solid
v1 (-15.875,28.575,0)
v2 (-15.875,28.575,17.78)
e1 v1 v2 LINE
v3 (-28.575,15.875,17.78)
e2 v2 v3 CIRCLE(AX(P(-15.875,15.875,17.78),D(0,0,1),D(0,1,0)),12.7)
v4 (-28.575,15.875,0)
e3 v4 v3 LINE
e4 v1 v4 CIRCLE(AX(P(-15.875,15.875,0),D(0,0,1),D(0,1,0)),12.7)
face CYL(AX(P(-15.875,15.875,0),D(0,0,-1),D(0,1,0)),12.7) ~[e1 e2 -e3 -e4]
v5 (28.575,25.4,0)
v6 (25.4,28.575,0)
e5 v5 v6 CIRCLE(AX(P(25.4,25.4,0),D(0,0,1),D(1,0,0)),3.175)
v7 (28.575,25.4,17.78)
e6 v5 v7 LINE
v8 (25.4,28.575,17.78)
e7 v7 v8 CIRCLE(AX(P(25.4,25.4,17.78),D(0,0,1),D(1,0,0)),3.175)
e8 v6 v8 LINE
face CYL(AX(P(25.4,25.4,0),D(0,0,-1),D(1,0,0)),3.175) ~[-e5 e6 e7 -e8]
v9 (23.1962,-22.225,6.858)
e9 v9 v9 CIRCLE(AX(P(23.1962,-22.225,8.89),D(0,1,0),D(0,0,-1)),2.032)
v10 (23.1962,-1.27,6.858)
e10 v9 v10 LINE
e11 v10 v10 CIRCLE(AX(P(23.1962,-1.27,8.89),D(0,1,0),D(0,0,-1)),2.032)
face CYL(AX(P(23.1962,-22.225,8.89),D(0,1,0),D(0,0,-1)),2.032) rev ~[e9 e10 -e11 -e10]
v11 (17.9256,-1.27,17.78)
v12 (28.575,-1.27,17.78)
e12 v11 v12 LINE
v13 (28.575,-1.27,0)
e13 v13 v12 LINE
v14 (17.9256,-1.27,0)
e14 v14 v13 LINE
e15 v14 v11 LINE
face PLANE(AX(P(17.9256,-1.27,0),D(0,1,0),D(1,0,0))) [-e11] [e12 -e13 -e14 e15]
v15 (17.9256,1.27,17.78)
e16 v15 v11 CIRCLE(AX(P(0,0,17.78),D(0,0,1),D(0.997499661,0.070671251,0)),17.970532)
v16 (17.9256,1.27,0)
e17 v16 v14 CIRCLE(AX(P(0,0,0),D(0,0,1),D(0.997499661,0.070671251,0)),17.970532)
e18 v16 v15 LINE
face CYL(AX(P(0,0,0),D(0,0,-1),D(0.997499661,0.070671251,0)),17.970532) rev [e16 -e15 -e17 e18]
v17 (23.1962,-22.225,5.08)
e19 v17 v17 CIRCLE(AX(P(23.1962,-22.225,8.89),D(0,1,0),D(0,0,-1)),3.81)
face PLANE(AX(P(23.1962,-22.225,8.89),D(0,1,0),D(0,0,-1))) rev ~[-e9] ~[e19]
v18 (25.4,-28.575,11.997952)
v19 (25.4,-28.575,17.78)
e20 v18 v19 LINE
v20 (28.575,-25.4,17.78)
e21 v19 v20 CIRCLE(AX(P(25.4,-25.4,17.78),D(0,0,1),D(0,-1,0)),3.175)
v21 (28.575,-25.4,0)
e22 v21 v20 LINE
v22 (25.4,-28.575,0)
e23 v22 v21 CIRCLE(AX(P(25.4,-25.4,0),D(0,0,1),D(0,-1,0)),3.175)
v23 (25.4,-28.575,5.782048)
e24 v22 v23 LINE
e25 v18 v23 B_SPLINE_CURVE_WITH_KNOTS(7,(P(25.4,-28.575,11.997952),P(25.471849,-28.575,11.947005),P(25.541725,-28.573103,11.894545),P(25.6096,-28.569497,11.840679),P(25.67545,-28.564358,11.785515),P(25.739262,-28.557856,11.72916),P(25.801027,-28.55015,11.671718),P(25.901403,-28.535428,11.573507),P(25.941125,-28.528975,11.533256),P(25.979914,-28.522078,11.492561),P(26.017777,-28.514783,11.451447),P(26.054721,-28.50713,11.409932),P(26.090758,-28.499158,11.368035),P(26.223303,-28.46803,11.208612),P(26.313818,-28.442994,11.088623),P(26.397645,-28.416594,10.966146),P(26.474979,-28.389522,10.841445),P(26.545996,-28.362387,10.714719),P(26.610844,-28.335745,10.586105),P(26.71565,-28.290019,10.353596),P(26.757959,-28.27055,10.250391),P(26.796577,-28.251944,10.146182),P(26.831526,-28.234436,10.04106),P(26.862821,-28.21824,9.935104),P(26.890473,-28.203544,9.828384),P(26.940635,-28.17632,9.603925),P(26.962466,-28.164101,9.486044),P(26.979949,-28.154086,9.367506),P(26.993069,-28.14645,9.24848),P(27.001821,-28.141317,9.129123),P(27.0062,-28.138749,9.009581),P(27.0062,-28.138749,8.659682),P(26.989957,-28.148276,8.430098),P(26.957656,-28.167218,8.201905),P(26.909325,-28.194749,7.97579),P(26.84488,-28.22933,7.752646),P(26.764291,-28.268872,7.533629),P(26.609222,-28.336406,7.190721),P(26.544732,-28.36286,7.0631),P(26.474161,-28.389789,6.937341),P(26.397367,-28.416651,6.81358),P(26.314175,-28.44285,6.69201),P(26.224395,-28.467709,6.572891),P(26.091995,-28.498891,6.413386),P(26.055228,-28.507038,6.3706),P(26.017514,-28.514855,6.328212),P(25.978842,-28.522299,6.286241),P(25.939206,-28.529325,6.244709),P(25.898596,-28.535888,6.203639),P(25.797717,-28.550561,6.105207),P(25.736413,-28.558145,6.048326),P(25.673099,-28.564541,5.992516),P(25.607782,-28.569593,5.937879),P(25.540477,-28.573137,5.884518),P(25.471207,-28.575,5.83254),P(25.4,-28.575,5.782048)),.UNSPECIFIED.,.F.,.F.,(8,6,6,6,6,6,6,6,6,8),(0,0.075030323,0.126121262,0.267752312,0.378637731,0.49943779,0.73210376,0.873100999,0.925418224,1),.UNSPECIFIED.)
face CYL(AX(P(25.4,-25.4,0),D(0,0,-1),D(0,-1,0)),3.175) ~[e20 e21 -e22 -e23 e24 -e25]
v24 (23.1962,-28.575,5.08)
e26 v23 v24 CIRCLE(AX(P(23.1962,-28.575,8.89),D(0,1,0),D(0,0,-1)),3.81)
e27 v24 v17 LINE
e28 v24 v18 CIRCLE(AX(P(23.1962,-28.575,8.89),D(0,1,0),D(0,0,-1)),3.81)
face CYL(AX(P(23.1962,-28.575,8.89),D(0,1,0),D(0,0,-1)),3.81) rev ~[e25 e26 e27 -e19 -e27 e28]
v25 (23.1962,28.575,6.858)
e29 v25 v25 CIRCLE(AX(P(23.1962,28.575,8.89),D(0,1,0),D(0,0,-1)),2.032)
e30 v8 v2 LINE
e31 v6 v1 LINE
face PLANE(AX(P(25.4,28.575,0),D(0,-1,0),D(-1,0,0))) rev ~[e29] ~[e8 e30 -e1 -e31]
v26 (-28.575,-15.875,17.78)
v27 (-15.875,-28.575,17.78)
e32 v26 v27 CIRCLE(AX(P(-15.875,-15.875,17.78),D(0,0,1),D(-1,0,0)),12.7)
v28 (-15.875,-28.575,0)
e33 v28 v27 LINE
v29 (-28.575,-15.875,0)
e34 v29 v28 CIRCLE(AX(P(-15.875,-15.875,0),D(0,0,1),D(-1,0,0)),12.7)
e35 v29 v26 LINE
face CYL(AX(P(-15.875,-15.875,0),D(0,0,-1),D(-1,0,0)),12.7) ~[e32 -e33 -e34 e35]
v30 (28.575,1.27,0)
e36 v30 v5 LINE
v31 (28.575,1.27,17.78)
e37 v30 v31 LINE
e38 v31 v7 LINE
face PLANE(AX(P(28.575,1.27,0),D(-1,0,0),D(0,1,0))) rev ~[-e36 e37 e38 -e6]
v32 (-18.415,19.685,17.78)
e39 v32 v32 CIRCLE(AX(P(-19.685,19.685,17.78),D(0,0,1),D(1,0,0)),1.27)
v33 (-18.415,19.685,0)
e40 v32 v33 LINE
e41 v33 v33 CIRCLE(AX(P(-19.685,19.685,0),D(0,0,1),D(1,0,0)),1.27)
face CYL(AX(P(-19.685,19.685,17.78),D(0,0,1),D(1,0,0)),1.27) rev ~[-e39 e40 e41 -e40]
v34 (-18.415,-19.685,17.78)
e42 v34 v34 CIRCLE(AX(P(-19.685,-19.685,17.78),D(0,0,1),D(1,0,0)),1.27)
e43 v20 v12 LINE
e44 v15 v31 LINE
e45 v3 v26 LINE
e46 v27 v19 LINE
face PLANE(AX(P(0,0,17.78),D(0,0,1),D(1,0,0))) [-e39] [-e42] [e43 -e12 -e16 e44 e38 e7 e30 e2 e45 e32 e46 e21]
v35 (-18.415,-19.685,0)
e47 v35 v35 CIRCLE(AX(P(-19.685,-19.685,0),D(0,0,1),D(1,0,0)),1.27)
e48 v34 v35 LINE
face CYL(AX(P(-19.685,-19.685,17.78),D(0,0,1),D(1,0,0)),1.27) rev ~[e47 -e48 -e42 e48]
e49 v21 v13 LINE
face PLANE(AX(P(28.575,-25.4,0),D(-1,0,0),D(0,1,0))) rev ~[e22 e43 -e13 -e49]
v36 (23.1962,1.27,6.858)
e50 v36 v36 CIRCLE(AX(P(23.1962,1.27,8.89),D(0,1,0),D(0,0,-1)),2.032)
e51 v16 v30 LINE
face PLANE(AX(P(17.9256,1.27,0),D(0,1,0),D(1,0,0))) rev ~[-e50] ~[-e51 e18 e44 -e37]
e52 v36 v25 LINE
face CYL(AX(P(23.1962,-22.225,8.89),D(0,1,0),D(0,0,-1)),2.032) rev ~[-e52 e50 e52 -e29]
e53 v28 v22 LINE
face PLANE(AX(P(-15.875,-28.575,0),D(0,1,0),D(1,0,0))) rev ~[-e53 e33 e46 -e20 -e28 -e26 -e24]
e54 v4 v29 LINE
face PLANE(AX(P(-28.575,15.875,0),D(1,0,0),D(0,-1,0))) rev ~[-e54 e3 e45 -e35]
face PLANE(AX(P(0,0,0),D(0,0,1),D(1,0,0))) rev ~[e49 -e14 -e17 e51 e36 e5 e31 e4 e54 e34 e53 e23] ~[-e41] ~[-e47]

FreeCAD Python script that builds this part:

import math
import FreeCAD as App
import Part
import Sketcher
Q = App.Units.Quantity

doc = App.newDocument("Part")
body = doc.addObject("PartDesign::Body", "Body")

sketch1 = body.newObject("Sketcher::SketchObject", "Sketch")
sketch1.AttachmentSupport = (doc.getObject("XY_Plane"), [""])
sketch1.MapMode = "FlatFace"
sketch1.addGeometry([
    Part.ArcOfCircle(Part.Circle(App.Vector(-15.9, -15.9, 0), App.Vector(0, 0, 1), 12.7), math.radians(180), math.radians(270)),
    Part.LineSegment(App.Vector(-15.9, -28.6, 0), App.Vector(25.4, -28.6, 0)),
    Part.ArcOfCircle(Part.Circle(App.Vector(25.4, -25.4, 0), App.Vector(0, 0, 1), 3.2), math.radians(-90), math.radians(0)),
    Part.LineSegment(App.Vector(28.6, -25.4, 0), App.Vector(28.6, -1.3, 0)),
    Part.LineSegment(App.Vector(28.6, -1.3, 0), App.Vector(17.9, -1.3, 0)),
    Part.ArcOfCircle(Part.Circle(App.Vector(0, 0, 0), App.Vector(0, 0, 1), 18), math.radians(4), math.radians(356)),
    Part.LineSegment(App.Vector(17.9, 1.3, 0), App.Vector(28.6, 1.3, 0)),
    Part.LineSegment(App.Vector(28.6, 1.3, 0), App.Vector(28.6, 25.4, 0)),
    Part.ArcOfCircle(Part.Circle(App.Vector(25.4, 25.4, 0), App.Vector(0, 0, 1), 3.2), math.radians(0), math.radians(90)),
    Part.LineSegment(App.Vector(25.4, 28.6, 0), App.Vector(-15.9, 28.6, 0)),
    Part.ArcOfCircle(Part.Circle(App.Vector(-15.9, 15.9, 0), App.Vector(0, 0, 1), 12.7), math.radians(90), math.radians(180)),
    Part.LineSegment(App.Vector(-28.6, 15.9, 0), App.Vector(-28.6, -15.9, 0)),
], False)
sketch1.addConstraint([
    Sketcher.Constraint("Tangent", 0, 2, 1, 1),
    Sketcher.Constraint("Tangent", 1, 2, 2, 1),
    Sketcher.Constraint("Tangent", 2, 2, 3, 1),
    Sketcher.Constraint("Coincident", 3, 2, 4, 1),
    Sketcher.Constraint("Coincident", 4, 2, 5, 2),
    Sketcher.Constraint("Coincident", 5, 1, 6, 1),
    Sketcher.Constraint("Coincident", 6, 2, 7, 1),
    Sketcher.Constraint("Tangent", 7, 2, 8, 1),
    Sketcher.Constraint("Tangent", 8, 2, 9, 1),
    Sketcher.Constraint("Tangent", 9, 2, 10, 1),
    Sketcher.Constraint("Tangent", 10, 2, 11, 1),
    Sketcher.Constraint("Tangent", 11, 2, 0, 1),
    Sketcher.Constraint("Horizontal", 1),
    Sketcher.Constraint("Vertical", 3),
    Sketcher.Constraint("Horizontal", 4),
    Sketcher.Constraint("Horizontal", 6),
    Sketcher.Constraint("Vertical", 7),
    Sketcher.Constraint("Horizontal", 9),
    Sketcher.Constraint("Vertical", 11),
    Sketcher.Constraint("Coincident", 5, 3, -1, 1),
    Sketcher.Constraint("Equal", 2, 8),
    Sketcher.Constraint("Equal", 0, 10),
    Sketcher.Constraint("Symmetric", 2, 3, 8, 3, -1),
    Sketcher.Constraint("Vertical", 4, 2, 5, 1),
    Sketcher.Constraint("Radius", 0, Q("0.5 in")),
    Sketcher.Constraint("Radius", 2, Q("0.125 in")),
    Sketcher.Constraint("Radius", 5, Q("0.7075 in")),
    Sketcher.Constraint("DistanceY", 4, 2, 5, 1, Q("0.1 in")),
    Sketcher.Constraint("DistanceX", -1, 1, 2, 3, Q("1 in")),
    Sketcher.Constraint("DistanceY", 2, 3, -1, 1, Q("1 in")),
    Sketcher.Constraint("DistanceX", 10, 2, -1, 1, Q("1.125 in")),
])
pad1 = body.newObject("PartDesign::Pad", "Pad")
pad1.Profile = sketch1
pad1.Length = Q("0.7 in")

sketch2 = body.newObject("Sketcher::SketchObject", "Sketch001")
sketch2.AttachmentSupport = (doc.getObject("XZ_Plane"), [""])
sketch2.MapMode = "FlatFace"
sketch2.AttachmentOffset = App.Placement(App.Vector(0, 0, 0.05 * 25.4), App.Rotation())
sketch2.addGeometry(Part.Circle(App.Vector(23.2, 8.9, 0), App.Vector(0, 0, 1), 1.3), False)
sketch2.addConstraint([
    Sketcher.Constraint("Diameter", 0, Q("0.1 in")),
    Sketcher.Constraint("DistanceY", -1, 1, 0, 3, Q("0.35 in")),
    Sketcher.Constraint("DistanceX", -1, 1, 0, 3, 23.1962),
])
doc.recompute()
hole = body.newObject("PartDesign::Hole", "Hole")
hole.Profile = sketch2
hole.ThreadType = "None"
hole.Diameter = Q("0.1 in")
hole.DepthType = "ThroughAll"
hole.Reversed = True

sketch3 = body.newObject("Sketcher::SketchObject", "Sketch002")
sketch3.AttachmentSupport = (doc.getObject("XZ_Plane"), [""])
sketch3.MapMode = "FlatFace"
sketch3.AttachmentOffset = App.Placement(App.Vector(0, 0, 1.125 * 25.4), App.Rotation())
sketch3.addGeometry(Part.Circle(App.Vector(23.2, 8.9, 0), App.Vector(0, 0, 1), 2), False)
sketch3.addConstraint([
    Sketcher.Constraint("Diameter", 0, Q("0.16 in")),
    Sketcher.Constraint("DistanceY", -1, 1, 0, 3, Q("0.35 in")),
    Sketcher.Constraint("DistanceX", -1, 1, 0, 3, 23.1962),
])
doc.recompute()
hole2 = body.newObject("PartDesign::Hole", "Hole001")
hole2.Profile = sketch3
hole2.ThreadType = "None"
hole2.Diameter = Q("0.16 in")
hole2.DepthType = "ThroughAll"
hole2.HoleCutType = "Counterbore"
hole2.HoleCutDiameter = Q("0.3 in")
hole2.HoleCutDepth = Q("0.25 in")

sketch4 = body.newObject("Sketcher::SketchObject", "Sketch003")
sketch4.AttachmentSupport = (doc.getObject("XY_Plane"), [""])
sketch4.MapMode = "FlatFace"
sketch4.AttachmentOffset = App.Placement(App.Vector(0, 0, 0.7 * 25.4), App.Rotation())
sketch4.addGeometry([
    Part.Circle(App.Vector(-19.7, -19.7, 0), App.Vector(0, 0, 1), 1.3),
    Part.Circle(App.Vector(-19.7, 19.7, 0), App.Vector(0, 0, 1), 1.3),
], False)
sketch4.addConstraint([
    Sketcher.Constraint("Equal", 0, 1),
    Sketcher.Constraint("Symmetric", 0, 3, 1, 3, -1),
    Sketcher.Constraint("Diameter", 0, Q("0.1 in")),
    Sketcher.Constraint("DistanceY", 0, 3, 1, 3, Q("1.55 in")),
    Sketcher.Constraint("DistanceX", 0, 3, -1, 1, Q("0.775 in")),
])
pocket1 = body.newObject("PartDesign::Pocket", "Pocket")
pocket1.Profile = sketch4
pocket1.Length = Q("1 in")

doc.recompute()
